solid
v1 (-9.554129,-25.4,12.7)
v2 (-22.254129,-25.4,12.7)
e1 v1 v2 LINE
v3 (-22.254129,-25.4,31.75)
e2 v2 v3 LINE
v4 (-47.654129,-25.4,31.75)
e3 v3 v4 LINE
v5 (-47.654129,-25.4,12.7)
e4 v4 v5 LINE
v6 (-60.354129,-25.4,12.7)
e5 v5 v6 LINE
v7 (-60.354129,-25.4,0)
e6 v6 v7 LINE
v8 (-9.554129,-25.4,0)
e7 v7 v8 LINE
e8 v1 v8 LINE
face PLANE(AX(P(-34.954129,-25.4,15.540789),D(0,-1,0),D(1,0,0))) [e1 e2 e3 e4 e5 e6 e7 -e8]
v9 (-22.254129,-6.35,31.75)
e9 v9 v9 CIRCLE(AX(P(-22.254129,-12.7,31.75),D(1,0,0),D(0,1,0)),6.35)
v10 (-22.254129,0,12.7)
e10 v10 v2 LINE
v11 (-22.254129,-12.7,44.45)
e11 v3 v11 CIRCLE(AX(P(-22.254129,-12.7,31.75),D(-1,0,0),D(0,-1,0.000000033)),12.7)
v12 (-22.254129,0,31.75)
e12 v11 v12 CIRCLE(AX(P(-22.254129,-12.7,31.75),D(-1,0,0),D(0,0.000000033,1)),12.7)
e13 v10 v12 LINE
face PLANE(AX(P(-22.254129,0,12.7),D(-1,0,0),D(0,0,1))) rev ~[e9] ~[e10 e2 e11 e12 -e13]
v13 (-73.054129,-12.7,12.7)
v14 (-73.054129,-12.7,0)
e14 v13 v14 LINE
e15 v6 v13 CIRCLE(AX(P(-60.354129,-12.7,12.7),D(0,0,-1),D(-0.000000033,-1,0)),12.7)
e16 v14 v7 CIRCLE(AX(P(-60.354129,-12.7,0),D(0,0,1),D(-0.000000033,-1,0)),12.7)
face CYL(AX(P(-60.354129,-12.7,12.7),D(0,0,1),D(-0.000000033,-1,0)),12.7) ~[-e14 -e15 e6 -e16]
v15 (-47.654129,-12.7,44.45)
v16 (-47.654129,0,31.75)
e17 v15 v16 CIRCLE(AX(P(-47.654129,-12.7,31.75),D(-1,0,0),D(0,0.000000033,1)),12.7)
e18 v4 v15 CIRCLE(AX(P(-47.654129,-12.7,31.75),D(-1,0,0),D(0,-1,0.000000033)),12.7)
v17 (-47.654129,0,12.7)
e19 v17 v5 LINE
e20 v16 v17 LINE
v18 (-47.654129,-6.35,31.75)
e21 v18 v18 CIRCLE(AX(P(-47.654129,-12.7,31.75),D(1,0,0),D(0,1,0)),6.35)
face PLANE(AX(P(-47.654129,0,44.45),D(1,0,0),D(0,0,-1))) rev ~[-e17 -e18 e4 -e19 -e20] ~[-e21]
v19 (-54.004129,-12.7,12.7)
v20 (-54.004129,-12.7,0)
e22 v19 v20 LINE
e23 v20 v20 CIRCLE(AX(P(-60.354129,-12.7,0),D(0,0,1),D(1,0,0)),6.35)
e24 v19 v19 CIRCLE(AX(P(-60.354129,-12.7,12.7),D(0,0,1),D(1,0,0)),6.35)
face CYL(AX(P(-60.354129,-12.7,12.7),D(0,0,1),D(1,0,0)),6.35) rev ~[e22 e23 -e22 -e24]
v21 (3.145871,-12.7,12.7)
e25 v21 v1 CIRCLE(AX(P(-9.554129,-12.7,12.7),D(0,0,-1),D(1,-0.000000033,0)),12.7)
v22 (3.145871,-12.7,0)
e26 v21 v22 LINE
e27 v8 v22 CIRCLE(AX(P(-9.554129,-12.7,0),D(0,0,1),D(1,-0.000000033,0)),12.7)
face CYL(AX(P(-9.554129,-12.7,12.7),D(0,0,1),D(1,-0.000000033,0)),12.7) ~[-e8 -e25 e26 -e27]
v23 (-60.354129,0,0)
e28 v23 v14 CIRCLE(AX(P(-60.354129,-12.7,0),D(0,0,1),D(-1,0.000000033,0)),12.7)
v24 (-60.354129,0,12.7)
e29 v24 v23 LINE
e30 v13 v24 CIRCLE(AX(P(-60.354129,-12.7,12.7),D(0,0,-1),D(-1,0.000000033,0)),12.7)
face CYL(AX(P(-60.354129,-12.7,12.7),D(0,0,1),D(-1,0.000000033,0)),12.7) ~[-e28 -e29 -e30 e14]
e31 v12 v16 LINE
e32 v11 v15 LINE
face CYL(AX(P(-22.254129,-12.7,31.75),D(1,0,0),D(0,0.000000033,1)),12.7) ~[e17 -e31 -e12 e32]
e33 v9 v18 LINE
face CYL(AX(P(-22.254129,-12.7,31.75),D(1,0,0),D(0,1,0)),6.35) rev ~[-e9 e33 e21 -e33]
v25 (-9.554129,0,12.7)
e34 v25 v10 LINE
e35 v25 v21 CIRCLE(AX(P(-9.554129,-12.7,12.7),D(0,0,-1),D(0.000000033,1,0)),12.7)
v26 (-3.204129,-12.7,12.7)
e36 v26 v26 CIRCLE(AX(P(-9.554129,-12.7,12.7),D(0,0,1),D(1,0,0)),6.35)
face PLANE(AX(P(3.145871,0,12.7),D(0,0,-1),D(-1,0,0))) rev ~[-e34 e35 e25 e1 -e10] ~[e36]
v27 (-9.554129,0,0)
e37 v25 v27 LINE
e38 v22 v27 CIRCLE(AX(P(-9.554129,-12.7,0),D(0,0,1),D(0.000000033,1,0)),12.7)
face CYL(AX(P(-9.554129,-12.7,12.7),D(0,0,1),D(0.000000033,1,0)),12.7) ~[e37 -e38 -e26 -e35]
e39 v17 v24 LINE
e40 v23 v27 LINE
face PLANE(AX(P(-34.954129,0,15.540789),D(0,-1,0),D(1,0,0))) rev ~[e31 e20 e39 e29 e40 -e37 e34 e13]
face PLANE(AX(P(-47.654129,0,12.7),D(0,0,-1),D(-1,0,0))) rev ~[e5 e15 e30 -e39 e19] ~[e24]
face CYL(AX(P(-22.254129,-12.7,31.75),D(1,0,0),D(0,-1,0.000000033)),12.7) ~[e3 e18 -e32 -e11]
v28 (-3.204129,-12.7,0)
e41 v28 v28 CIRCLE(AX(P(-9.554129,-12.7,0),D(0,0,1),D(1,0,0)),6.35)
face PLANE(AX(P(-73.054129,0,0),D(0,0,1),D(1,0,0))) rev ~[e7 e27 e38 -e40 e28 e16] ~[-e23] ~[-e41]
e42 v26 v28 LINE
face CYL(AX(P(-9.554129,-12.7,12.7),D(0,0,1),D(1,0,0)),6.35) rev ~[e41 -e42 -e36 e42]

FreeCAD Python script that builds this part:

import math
import FreeCAD as App
import Part
import Sketcher
Q = App.Units.Quantity

doc = App.newDocument("Part")
body = doc.addObject("PartDesign::Body", "Body")

sketch1 = doc.addObject("Sketcher::SketchObject", "Sketch")
body.addObject(sketch1)
sketch1.AttachmentSupport = (doc.XZ_Plane, [""])
sketch1.MapMode = "FlatFace"
sketch1.addGeometry(Part.LineSegment(App.Vector(-73, 13, 0), App.Vector(-73, 0, 0)), False)
sketch1.addGeometry(Part.LineSegment(App.Vector(-73, 0, 0), App.Vector(3, 0, 0)), False)
sketch1.addGeometry(Part.LineSegment(App.Vector(3, 0, 0), App.Vector(3, 13, 0)), False)
sketch1.addGeometry(Part.LineSegment(App.Vector(3, 13, 0), App.Vector(-22, 13, 0)), False)
sketch1.addGeometry(Part.LineSegment(App.Vector(-22, 13, 0), App.Vector(-22, 44, 0)), False)
sketch1.addGeometry(Part.LineSegment(App.Vector(-22, 44, 0), App.Vector(-48, 44, 0)), False)
sketch1.addGeometry(Part.LineSegment(App.Vector(-48, 44, 0), App.Vector(-48, 13, 0)), False)
sketch1.addGeometry(Part.LineSegment(App.Vector(-48, 13, 0), App.Vector(-73, 13, 0)), False)
sketch1.addConstraint(Sketcher.Constraint("Coincident", 0, 2, 1, 1))
sketch1.addConstraint(Sketcher.Constraint("Coincident", 1, 2, 2, 1))
sketch1.addConstraint(Sketcher.Constraint("Coincident", 2, 2, 3, 1))
sketch1.addConstraint(Sketcher.Constraint("Coincident", 3, 2, 4, 1))
sketch1.addConstraint(Sketcher.Constraint("Coincident", 4, 2, 5, 1))
sketch1.addConstraint(Sketcher.Constraint("Coincident", 5, 2, 6, 1))
sketch1.addConstraint(Sketcher.Constraint("Coincident", 6, 2, 7, 1))
sketch1.addConstraint(Sketcher.Constraint("Coincident", 7, 2, 0, 1))
sketch1.addConstraint(Sketcher.Constraint("Vertical", 0))
sketch1.addConstraint(Sketcher.Constraint("Horizontal", 1))
sketch1.addConstraint(Sketcher.Constraint("Vertical", 2))
sketch1.addConstraint(Sketcher.Constraint("Horizontal", 3))
sketch1.addConstraint(Sketcher.Constraint("Vertical", 4))
sketch1.addConstraint(Sketcher.Constraint("Horizontal", 5))
sketch1.addConstraint(Sketcher.Constraint("Vertical", 6))
sketch1.addConstraint(Sketcher.Constraint("Horizontal", 7))
sketch1.addConstraint(Sketcher.Constraint("PointOnObject", 0, 2, -1))
sketch1.addConstraint(Sketcher.Constraint("Horizontal", 3, 2, 6, 2))
sketch1.addConstraint(Sketcher.Constraint("Equal", 3, 5))
sketch1.addConstraint(Sketcher.Constraint("Equal", 5, 7))
sketch1.addConstraint(Sketcher.Constraint("DistanceX", 1, 1, 1, 2, Q("3 in")))
sketch1.addConstraint(Sketcher.Constraint("DistanceY", 0, 2, 0, 1, Q("0.5 in")))
sketch1.addConstraint(Sketcher.Constraint("DistanceY", 4, 1, 4, 2, Q("1.25 in")))
sketch1.addConstraint(Sketcher.Constraint("DistanceX", 0, 2, -1, 1, Q("73.054129 mm")))
pad1 = doc.addObject("PartDesign::Pad", "Pad")
body.addObject(pad1)
pad1.Profile = sketch1
pad1.Length = Q("1 in")

sketch2 = doc.addObject("Sketcher::SketchObject", "Sketch001")
body.addObject(sketch2)
sketch2.AttachmentSupport = (doc.XY_Plane, [""])
sketch2.MapMode = "FlatFace"
sketch2.AttachmentOffset = App.Placement(App.Vector(0, 0, 0.5 * 25.4), App.Rotation())
sketch2.addGeometry(Part.ArcOfCircle(Part.Circle(App.Vector(-60, -13, 0), App.Vector(0, 0, 1), 13), math.radians(90), math.radians(180)), False)
sketch2.addGeometry(Part.LineSegment(App.Vector(-60, 0, 0), App.Vector(-73, 0, 0)), False)
sketch2.addGeometry(Part.LineSegment(App.Vector(-73, 0, 0), App.Vector(-73, -13, 0)), False)
sketch2.addGeometry(Part.ArcOfCircle(Part.Circle(App.Vector(-60, -13, 0), App.Vector(0, 0, 1), 13), math.radians(-180), math.radians(-90)), False)
sketch2.addGeometry(Part.LineSegment(App.Vector(-73, -13, 0), App.Vector(-73, -25, 0)), False)
sketch2.addGeometry(Part.LineSegment(App.Vector(-73, -25, 0), App.Vector(-60, -25, 0)), False)
sketch2.addGeometry(Part.ArcOfCircle(Part.Circle(App.Vector(-10, -13, 0), App.Vector(0, 0, 1), 13), math.radians(0), math.radians(90)), False)
sketch2.addGeometry(Part.LineSegment(App.Vector(3, -13, 0), App.Vector(3, 0, 0)), False)
sketch2.addGeometry(Part.LineSegment(App.Vector(3, 0, 0), App.Vector(-10, 0, 0)), False)
sketch2.addGeometry(Part.ArcOfCircle(Part.Circle(App.Vector(-10, -13, 0), App.Vector(0, 0, 1), 13), math.radians(-90), math.radians(0)), False)
sketch2.addGeometry(Part.LineSegment(App.Vector(-10, -25, 0), App.Vector(3, -25, 0)), False)
sketch2.addGeometry(Part.LineSegment(App.Vector(3, -25, 0), App.Vector(3, -13, 0)), False)
sketch2.addConstraint(Sketcher.Constraint("Tangent", 0, 1, 1, 1))
sketch2.addConstraint(Sketcher.Constraint("Coincident", 1, 2, 2, 1))
sketch2.addConstraint(Sketcher.Constraint("Tangent", 2, 2, 0, 2))
sketch2.addConstraint(Sketcher.Constraint("Tangent", 3, 1, 4, 1))
sketch2.addConstraint(Sketcher.Constraint("Coincident", 4, 2, 5, 1))
sketch2.addConstraint(Sketcher.Constraint("Tangent", 5, 2, 3, 2))
sketch2.addConstraint(Sketcher.Constraint("Tangent", 6, 1, 7, 1))
sketch2.addConstraint(Sketcher.Constraint("Coincident", 7, 2, 8, 1))
sketch2.addConstraint(Sketcher.Constraint("Tangent", 8, 2, 6, 2))
sketch2.addConstraint(Sketcher.Constraint("Tangent", 9, 1, 10, 1))
sketch2.addConstraint(Sketcher.Constraint("Coincident", 10, 2, 11, 1))
sketch2.addConstraint(Sketcher.Constraint("Tangent", 11, 2, 9, 2))
sketch2.addConstraint(Sketcher.Constraint("Horizontal", 1))
sketch2.addConstraint(Sketcher.Constraint("Vertical", 2))
sketch2.addConstraint(Sketcher.Constraint("Vertical", 4))
sketch2.addConstraint(Sketcher.Constraint("Horizontal", 5))
sketch2.addConstraint(Sketcher.Constraint("Vertical", 7))
sketch2.addConstraint(Sketcher.Constraint("Horizontal", 8))
sketch2.addConstraint(Sketcher.Constraint("Horizontal", 10))
sketch2.addConstraint(Sketcher.Constraint("Vertical", 11))
sketch2.addConstraint(Sketcher.Constraint("Coincident", 3, 3, 0, 3))
sketch2.addConstraint(Sketcher.Constraint("Coincident", 9, 3, 6, 3))
sketch2.addConstraint(Sketcher.Constraint("Equal", 0, 3))
sketch2.addConstraint(Sketcher.Constraint("Equal", 3, 6))
sketch2.addConstraint(Sketcher.Constraint("Equal", 6, 9))
sketch2.addConstraint(Sketcher.Constraint("PointOnObject", 0, 1, -1))
sketch2.addConstraint(Sketcher.Constraint("PointOnObject", 7, 2, -1))
sketch2.addConstraint(Sketcher.Constraint("Radius", 0, Q("0.5 in")))
sketch2.addConstraint(Sketcher.Constraint("DistanceX", 0, 3, 6, 3, Q("2 in")))
sketch2.addConstraint(Sketcher.Constraint("DistanceX", 0, 3, -1, 1, Q("60.354129 mm")))
pocket1 = doc.addObject("PartDesign::Pocket", "Pocket")
body.addObject(pocket1)
pocket1.Profile = sketch2
pocket1.Length = Q("1 in")

sketch3 = doc.addObject("Sketcher::SketchObject", "Sketch002")
body.addObject(sketch3)
sketch3.AttachmentSupport = (doc.XY_Plane, [""])
sketch3.MapMode = "FlatFace"
sketch3.AttachmentOffset = App.Placement(App.Vector(0, 0, 0.5 * 25.4), App.Rotation())
sketch3.addGeometry(Part.Circle(App.Vector(-60, -13, 0), App.Vector(0, 0, 1), 6), False)
sketch3.addGeometry(Part.Circle(App.Vector(-10, -13, 0), App.Vector(0, 0, 1), 6), False)
sketch3.addConstraint(Sketcher.Constraint("Equal", 0, 1))
sketch3.addConstraint(Sketcher.Constraint("Horizontal", 0, 3, 1, 3))
sketch3.addConstraint(Sketcher.Constraint("Diameter", 0, Q("0.5 in")))
sketch3.addConstraint(Sketcher.Constraint("DistanceX", 0, 3, 1, 3, Q("2 in")))
sketch3.addConstraint(Sketcher.Constraint("DistanceY", 0, 3, -1, 1, Q("0.5 in")))
sketch3.addConstraint(Sketcher.Constraint("DistanceX", 0, 3, -1, 1, Q("60.354129 mm")))
pocket2 = doc.addObject("PartDesign::Pocket", "Pocket001")
body.addObject(pocket2)
pocket2.Profile = sketch3
pocket2.Length = Q("1 in")

sketch4 = doc.addObject("Sketcher::SketchObject", "Sketch003")
body.addObject(sketch4)
sketch4.AttachmentSupport = (doc.YZ_Plane, [""])
sketch4.MapMode = "FlatFace"
sketch4.AttachmentOffset = App.Placement(App.Vector(0, 0, -22.254129), App.Rotation())
sketch4.addGeometry(Part.ArcOfCircle(Part.Circle(App.Vector(-13, 32, 0), App.Vector(0, 0, 1), 13), math.radians(90), math.radians(180)), False)
sketch4.addGeometry(Part.LineSegment(App.Vector(-13, 44, 0), App.Vector(-25, 44, 0)), False)
sketch4.addGeometry(Part.LineSegment(App.Vector(-25, 44, 0), App.Vector(-25, 32, 0)), False)
sketch4.addGeometry(Part.ArcOfCircle(Part.Circle(App.Vector(-13, 32, 0), App.Vector(0, 0, 1), 13), math.radians(0), math.radians(90)), False)
sketch4.addGeometry(Part.LineSegment(App.Vector(0, 32, 0), App.Vector(0, 44, 0)), False)
sketch4.addGeometry(Part.LineSegment(App.Vector(0, 44, 0), App.Vector(-13, 44, 0)), False)
sketch4.addConstraint(Sketcher.Constraint("Tangent", 0, 1, 1, 1))
sketch4.addConstraint(Sketcher.Constraint("Coincident", 1, 2, 2, 1))
sketch4.addConstraint(Sketcher.Constraint("Tangent", 2, 2, 0, 2))
sketch4.addConstraint(Sketcher.Constraint("Tangent", 3, 1, 4, 1))
sketch4.addConstraint(Sketcher.Constraint("Coincident", 4, 2, 5, 1))
sketch4.addConstraint(Sketcher.Constraint("Tangent", 5, 2, 3, 2))
sketch4.addConstraint(Sketcher.Constraint("Horizontal", 1))
sketch4.addConstraint(Sketcher.Constraint("Vertical", 2))
sketch4.addConstraint(Sketcher.Constraint("Vertical", 4))
sketch4.addConstraint(Sketcher.Constraint("Horizontal", 5))
sketch4.addConstraint(Sketcher.Constraint("Coincident", 3, 3, 0, 3))
sketch4.addConstraint(Sketcher.Constraint("Equal", 0, 3))
sketch4.addConstraint(Sketcher.Constraint("PointOnObject", 3, 1, -2))
sketch4.addConstraint(Sketcher.Constraint("Radius", 0, Q("0.5 in")))
sketch4.addConstraint(Sketcher.Constraint("DistanceY", -1, 1, 0, 3, Q("1.25 in")))
pocket3 = doc.addObject("PartDesign::Pocket", "Pocket002")
body.addObject(pocket3)
pocket3.Profile = sketch4
pocket3.Length = Q("1 in")

sketch5 = doc.addObject("Sketcher::SketchObject", "Sketch004")
body.addObject(sketch5)
sketch5.AttachmentSupport = (doc.YZ_Plane, [""])
sketch5.MapMode = "FlatFace"
sketch5.AttachmentOffset = App.Placement(App.Vector(0, 0, -22.254129), App.Rotation())
sketch5.addGeometry(Part.Circle(App.Vector(-13, 32, 0), App.Vector(0, 0, 1), 6), False)
sketch5.addConstraint(Sketcher.Constraint("Diameter", 0, Q("0.5 in")))
sketch5.addConstraint(Sketcher.Constraint("DistanceX", 0, 3, -1, 1, Q("0.5 in")))
sketch5.addConstraint(Sketcher.Constraint("DistanceY", -1, 1, 0, 3, Q("1.25 in")))
pocket4 = doc.addObject("PartDesign::Pocket", "Pocket003")
body.addObject(pocket4)
pocket4.Profile = sketch5
pocket4.Length = Q("1 in")

doc.recompute()
